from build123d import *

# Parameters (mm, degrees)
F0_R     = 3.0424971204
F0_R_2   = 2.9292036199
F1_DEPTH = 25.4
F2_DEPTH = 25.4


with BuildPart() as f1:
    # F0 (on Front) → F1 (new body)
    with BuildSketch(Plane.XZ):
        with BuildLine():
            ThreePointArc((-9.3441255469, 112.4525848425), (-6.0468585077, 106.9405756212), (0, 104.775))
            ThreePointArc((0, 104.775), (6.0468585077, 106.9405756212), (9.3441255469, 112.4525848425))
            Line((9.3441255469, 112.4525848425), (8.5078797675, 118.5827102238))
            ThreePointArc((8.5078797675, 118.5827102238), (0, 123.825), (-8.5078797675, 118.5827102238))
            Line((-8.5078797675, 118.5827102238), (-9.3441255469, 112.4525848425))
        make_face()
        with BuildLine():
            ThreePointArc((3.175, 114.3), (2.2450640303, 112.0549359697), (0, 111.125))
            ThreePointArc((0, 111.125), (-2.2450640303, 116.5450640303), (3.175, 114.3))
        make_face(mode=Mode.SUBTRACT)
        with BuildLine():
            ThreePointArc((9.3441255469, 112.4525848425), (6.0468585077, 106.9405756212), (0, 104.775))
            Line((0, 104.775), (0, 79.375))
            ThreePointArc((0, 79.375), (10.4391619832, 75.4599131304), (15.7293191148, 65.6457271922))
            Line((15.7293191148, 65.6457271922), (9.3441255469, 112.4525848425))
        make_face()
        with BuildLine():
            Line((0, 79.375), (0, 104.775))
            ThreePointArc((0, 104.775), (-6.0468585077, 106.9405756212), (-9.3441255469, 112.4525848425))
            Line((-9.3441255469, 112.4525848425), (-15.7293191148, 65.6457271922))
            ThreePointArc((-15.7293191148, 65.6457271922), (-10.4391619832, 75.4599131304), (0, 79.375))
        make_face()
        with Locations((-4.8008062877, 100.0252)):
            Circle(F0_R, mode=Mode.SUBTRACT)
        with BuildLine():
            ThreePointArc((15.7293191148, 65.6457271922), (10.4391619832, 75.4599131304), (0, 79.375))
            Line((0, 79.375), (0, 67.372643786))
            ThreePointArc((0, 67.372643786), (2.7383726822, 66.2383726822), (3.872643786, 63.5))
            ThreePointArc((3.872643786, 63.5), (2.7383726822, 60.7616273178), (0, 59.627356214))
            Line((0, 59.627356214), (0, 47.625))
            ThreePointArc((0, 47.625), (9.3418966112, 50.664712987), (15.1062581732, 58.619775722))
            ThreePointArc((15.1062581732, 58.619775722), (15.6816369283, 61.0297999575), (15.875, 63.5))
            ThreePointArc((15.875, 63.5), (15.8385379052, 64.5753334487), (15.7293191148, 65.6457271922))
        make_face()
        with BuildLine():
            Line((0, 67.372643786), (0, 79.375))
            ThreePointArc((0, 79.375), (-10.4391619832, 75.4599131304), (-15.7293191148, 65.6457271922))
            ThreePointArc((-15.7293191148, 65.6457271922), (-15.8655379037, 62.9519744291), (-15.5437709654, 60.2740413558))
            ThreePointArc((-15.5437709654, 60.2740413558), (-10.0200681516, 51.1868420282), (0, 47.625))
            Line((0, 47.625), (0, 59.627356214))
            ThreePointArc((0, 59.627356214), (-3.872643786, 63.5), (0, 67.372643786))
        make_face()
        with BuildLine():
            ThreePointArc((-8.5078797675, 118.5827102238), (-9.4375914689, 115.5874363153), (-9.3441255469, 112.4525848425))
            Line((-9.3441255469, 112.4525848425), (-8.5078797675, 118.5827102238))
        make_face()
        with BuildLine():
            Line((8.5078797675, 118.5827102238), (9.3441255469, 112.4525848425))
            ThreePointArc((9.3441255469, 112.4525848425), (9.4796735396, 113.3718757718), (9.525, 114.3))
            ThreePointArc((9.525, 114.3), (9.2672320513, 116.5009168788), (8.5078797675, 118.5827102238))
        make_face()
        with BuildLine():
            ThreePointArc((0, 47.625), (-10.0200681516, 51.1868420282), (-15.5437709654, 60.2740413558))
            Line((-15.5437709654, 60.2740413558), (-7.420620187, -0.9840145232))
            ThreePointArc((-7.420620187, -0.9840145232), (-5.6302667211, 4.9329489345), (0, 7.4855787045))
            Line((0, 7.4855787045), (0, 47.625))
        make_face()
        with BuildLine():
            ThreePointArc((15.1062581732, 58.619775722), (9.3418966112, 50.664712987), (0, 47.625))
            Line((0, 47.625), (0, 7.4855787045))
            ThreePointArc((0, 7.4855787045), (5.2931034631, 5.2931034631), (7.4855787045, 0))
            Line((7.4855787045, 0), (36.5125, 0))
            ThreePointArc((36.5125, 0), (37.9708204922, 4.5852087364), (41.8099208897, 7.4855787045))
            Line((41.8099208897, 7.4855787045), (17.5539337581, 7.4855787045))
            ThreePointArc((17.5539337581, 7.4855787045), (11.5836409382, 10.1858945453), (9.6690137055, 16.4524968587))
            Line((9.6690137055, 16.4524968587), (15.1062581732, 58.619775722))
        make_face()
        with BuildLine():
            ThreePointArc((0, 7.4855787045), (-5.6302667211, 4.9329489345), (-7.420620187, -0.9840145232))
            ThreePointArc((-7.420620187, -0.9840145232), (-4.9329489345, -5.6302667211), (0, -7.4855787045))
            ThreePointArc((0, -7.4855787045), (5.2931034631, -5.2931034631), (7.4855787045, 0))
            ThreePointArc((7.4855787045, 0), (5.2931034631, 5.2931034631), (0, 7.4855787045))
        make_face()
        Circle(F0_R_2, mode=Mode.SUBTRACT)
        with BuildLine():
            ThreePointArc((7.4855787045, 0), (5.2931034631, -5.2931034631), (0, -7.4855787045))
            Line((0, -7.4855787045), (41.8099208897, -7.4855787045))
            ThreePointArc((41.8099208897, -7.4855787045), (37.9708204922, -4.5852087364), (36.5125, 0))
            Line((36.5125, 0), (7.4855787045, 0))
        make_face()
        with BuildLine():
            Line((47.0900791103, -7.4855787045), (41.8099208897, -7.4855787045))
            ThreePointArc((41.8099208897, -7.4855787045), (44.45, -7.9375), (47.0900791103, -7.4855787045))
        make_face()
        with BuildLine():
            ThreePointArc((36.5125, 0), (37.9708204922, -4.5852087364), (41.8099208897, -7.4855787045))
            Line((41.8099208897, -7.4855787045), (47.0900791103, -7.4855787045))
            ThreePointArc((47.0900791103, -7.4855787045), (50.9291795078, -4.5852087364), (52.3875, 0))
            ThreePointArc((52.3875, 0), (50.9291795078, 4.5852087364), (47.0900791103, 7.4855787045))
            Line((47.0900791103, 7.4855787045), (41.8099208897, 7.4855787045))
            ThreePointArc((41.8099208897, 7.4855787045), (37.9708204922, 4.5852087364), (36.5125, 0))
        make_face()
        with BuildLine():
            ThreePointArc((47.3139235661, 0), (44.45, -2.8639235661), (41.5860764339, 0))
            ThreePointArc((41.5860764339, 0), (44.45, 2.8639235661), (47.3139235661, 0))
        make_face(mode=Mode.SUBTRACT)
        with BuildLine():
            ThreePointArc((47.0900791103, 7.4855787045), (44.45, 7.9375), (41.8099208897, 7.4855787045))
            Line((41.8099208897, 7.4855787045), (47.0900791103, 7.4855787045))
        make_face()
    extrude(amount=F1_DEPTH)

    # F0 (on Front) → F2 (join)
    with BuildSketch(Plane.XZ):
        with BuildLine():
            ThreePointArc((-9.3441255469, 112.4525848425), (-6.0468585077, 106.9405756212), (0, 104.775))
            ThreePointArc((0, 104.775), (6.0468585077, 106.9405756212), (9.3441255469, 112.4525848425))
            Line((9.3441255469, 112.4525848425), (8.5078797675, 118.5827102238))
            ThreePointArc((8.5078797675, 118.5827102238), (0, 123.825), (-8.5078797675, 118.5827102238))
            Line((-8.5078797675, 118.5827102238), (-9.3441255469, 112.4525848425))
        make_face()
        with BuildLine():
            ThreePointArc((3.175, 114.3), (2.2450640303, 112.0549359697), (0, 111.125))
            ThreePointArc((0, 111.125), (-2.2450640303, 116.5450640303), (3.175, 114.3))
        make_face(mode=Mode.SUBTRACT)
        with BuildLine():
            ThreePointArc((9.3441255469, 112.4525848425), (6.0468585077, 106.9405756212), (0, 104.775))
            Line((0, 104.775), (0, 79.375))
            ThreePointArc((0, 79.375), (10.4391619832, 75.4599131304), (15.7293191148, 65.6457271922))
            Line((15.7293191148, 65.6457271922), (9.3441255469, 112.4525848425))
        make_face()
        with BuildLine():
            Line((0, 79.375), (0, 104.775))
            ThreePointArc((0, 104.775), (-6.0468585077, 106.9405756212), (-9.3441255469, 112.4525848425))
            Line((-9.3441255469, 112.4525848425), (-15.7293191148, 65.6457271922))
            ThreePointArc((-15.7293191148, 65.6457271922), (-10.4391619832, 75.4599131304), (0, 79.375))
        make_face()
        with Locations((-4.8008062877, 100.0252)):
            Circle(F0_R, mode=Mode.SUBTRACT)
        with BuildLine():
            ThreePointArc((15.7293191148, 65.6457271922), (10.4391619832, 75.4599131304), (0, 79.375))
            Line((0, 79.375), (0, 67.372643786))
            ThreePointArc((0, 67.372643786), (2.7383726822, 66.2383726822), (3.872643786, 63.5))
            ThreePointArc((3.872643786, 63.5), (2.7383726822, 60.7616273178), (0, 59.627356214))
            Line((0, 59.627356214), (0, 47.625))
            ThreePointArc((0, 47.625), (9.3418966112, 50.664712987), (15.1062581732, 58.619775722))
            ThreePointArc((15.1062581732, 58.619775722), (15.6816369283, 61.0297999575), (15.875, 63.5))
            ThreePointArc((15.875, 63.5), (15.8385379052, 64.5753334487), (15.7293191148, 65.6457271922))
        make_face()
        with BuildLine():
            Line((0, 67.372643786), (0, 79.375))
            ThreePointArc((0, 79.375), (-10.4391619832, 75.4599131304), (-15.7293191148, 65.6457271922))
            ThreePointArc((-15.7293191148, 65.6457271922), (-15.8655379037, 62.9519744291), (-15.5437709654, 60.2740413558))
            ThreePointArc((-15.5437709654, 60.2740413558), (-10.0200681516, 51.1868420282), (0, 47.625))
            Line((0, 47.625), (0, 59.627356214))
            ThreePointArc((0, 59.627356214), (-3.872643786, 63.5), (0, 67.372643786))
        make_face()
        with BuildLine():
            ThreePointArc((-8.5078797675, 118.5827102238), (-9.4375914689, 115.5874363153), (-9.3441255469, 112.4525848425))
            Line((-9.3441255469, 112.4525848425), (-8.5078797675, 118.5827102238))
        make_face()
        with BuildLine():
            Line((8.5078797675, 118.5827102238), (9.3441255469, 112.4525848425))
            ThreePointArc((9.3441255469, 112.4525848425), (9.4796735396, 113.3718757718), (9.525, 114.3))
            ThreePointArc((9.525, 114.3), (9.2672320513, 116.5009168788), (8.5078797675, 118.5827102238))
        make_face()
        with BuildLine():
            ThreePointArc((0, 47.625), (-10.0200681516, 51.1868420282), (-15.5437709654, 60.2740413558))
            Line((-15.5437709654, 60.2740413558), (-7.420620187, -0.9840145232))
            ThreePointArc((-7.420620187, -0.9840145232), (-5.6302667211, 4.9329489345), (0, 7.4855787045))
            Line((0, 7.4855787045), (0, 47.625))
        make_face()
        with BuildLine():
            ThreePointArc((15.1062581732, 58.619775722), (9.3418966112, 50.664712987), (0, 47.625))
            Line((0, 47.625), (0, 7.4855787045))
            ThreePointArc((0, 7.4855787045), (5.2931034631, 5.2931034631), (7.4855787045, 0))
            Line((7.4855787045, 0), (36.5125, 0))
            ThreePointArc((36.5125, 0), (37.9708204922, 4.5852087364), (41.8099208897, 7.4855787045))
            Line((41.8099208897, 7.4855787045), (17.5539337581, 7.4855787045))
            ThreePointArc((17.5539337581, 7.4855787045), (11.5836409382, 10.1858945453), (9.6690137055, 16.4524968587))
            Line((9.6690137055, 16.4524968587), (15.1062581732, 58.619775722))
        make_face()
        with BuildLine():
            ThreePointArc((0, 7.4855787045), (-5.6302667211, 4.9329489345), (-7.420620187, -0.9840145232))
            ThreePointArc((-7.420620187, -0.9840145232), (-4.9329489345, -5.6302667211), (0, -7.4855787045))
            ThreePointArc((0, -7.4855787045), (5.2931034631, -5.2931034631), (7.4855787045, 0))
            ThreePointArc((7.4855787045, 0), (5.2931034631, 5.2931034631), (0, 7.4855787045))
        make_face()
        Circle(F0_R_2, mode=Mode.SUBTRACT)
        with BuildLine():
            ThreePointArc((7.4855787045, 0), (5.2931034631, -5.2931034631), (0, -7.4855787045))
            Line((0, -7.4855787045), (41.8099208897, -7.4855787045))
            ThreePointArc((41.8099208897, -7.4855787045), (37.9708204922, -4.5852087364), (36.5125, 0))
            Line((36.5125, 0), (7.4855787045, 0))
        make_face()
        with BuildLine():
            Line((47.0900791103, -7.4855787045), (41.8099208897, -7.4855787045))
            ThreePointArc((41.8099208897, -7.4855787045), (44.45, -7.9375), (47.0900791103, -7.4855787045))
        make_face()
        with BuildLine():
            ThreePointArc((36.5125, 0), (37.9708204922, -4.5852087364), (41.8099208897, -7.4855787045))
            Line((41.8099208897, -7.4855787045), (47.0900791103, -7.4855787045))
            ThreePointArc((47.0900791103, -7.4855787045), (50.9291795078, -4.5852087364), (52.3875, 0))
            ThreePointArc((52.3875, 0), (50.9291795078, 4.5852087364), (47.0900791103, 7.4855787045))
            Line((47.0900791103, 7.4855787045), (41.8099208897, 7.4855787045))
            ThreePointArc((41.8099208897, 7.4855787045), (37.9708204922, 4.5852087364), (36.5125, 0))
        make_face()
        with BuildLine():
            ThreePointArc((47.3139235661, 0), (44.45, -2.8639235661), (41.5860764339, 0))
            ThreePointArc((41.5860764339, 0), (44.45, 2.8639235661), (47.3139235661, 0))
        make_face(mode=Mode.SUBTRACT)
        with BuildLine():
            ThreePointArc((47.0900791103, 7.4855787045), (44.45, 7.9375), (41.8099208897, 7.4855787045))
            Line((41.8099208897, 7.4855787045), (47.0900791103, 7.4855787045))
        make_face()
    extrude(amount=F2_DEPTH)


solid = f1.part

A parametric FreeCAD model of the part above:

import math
import FreeCAD as App
import Part
import Sketcher

V = App.Vector
Q = App.Units.Quantity

doc = App.newDocument("Part")
body = doc.addObject("PartDesign::Body", "Body")

sketch1 = body.newObject("Sketcher::SketchObject", "Sketch")
sketch1.AttachmentSupport = (doc.getObject("XZ_Plane"), [""])
sketch1.MapMode = "FlatFace"
sketch1.addGeometry([
    Part.ArcOfCircle(Part.Circle(V(0, 63.5, 0), V(0, 0, 1), 15.9), math.radians(-17.9), math.radians(0)),
    Part.ArcOfCircle(Part.Circle(V(0, 63.5, 0), V(0, 0, 1), 15.9), math.radians(0), math.radians(7.77)),
    Part.LineSegment(V(15.7, 65.6, 0), V(9.3, 112.5, 0)),
    Part.ArcOfCircle(Part.Circle(V(0, 114.3, 0), V(0, 0, 1), 9.5), math.radians(-11.18), math.radians(0)),
    Part.ArcOfCircle(Part.Circle(V(0, 114.3, 0), V(0, 0, 1), 9.5), math.radians(0), math.radians(27)),
    Part.ArcOfCircle(Part.Circle(V(0, 114.3, 0), V(0, 0, 1), 9.5), math.radians(27), math.radians(153)),
    Part.ArcOfCircle(Part.Circle(V(0, 114.3, 0), V(0, 0, 1), 9.5), math.radians(153), math.radians(191)),
    Part.LineSegment(V(-9.3, 112.5, 0), V(-15.7, 65.6, 0)),
    Part.ArcOfCircle(Part.Circle(V(0, 63.5, 0), V(0, 0, 1), 15.9), math.radians(172.23), math.radians(191.72)),
    Part.LineSegment(V(-15.5, 60.3, 0), V(-7.4, -1, 0)),
    Part.ArcOfCircle(Part.Circle(V(0, 0, 0), V(0, 0, 1), 7.5), math.radians(-172), math.radians(-90)),
    Part.LineSegment(V(0, -7.5, 0), V(41.8, -7.5, 0)),
    Part.ArcOfCircle(Part.Circle(V(44.5, 0, 0), V(0, 0, 1), 7.9), math.radians(-109), math.radians(-71)),
    Part.ArcOfCircle(Part.Circle(V(44.5, 0, 0), V(0, 0, 1), 7.9), math.radians(-71), math.radians(0)),
    Part.ArcOfCircle(Part.Circle(V(44.5, 0, 0), V(0, 0, 1), 7.9), math.radians(0), math.radians(71)),
    Part.ArcOfCircle(Part.Circle(V(44.5, 0, 0), V(0, 0, 1), 7.9), math.radians(71), math.radians(109)),
    Part.LineSegment(V(41.8, 7.5, 0), V(17.6, 7.5, 0)),
    Part.ArcOfCircle(Part.Circle(V(17.6, 15.4, 0), V(0, 0, 1), 8), math.radians(173), math.radians(270)),
    Part.LineSegment(V(9.7, 16.5, 0), V(15.1, 58.6, 0)),
    Part.Circle(V(0, 0, 0), V(0, 0, 1), 2.9),
    Part.Circle(V(44.5, 0, 0), V(0, 0, 1), 2.9),
    Part.Circle(V(0, 63.5, 0), V(0, 0, 1), 3.9),
    Part.Circle(V(-4.8, 100, 0), V(0, 0, 1), 3),
    Part.ArcOfCircle(Part.Circle(V(0, 114.3, 0), V(0, 0, 1), 3.2), math.radians(0), math.radians(270)),
    Part.ArcOfCircle(Part.Circle(V(0, 114.3, 0), V(0, 0, 1), 3.2), math.radians(-90), math.radians(0)),
], False)
sketch1.addConstraint([
    Sketcher.Constraint("Tangent", 0, 2, 1, 1),
    Sketcher.Constraint("Tangent", 1, 2, 2, 1),
    Sketcher.Constraint("Coincident", 2, 2, 3, 1),
    Sketcher.Constraint("Tangent", 3, 2, 4, 1),
    Sketcher.Constraint("Tangent", 4, 2, 5, 1),
    Sketcher.Constraint("Tangent", 5, 2, 6, 1),
    Sketcher.Constraint("Coincident", 6, 2, 7, 1),
    Sketcher.Constraint("Tangent", 7, 2, 8, 1),
    Sketcher.Constraint("Coincident", 8, 2, 9, 1),
    Sketcher.Constraint("Tangent", 9, 2, 10, 1),
    Sketcher.Constraint("Tangent", 10, 2, 11, 1),
    Sketcher.Constraint("Coincident", 11, 2, 12, 1),
    Sketcher.Constraint("Tangent", 12, 2, 13, 1),
    Sketcher.Constraint("Tangent", 13, 2, 14, 1),
    Sketcher.Constraint("Tangent", 14, 2, 15, 1),
    Sketcher.Constraint("Coincident", 15, 2, 16, 1),
    Sketcher.Constraint("Tangent", 16, 2, 17, 2),
    Sketcher.Constraint("Tangent", 17, 1, 18, 1),
    Sketcher.Constraint("Coincident", 18, 2, 0, 1),
    Sketcher.Constraint("Tangent", 23, 1, 24, 2),
    Sketcher.Constraint("Coincident", 24, 1, 23, 2),
    Sketcher.Constraint("Horizontal", 11),
    Sketcher.Constraint("Horizontal", 16),
    Sketcher.Constraint("Coincident", 10, 3, -1, 1),
    Sketcher.Constraint("Coincident", 19, 3, -1, 1),
    Sketcher.Constraint("Coincident", 5, 3, 3, 3),
    Sketcher.Constraint("Coincident", 8, 3, 0, 3),
    Sketcher.Constraint("Coincident", 14, 3, 12, 3),
    Sketcher.Constraint("Coincident", 20, 3, 12, 3),
    Sketcher.Constraint("Coincident", 21, 3, 0, 3),
    Sketcher.Constraint("Coincident", 23, 3, 3, 3),
    Sketcher.Constraint("Equal", 0, 1),
    Sketcher.Constraint("Equal", 5, 6),
    Sketcher.Constraint("Equal", 1, 8),
    Sketcher.Constraint("Equal", 14, 15),
    Sketcher.Constraint("Symmetric", 4, 2, 5, 2, -2),
    Sketcher.Constraint("Symmetric", 1, 2, 7, 2, -2),
    Sketcher.Constraint("Symmetric", 12, 2, 14, 2, -1),
    Sketcher.Constraint("PointOnObject", 13, 2, -1),
    Sketcher.Constraint("PointOnObject", 24, 1, -2),
    Sketcher.Constraint("Horizontal", 21, 3, 0, 2),
    Sketcher.Constraint("Horizontal", 24, 3, 3, 2),
    Sketcher.Constraint("Horizontal", 11, 2, 12, 2),
    Sketcher.Constraint("Horizontal", 14, 2, 15, 2),
    Sketcher.Constraint("Horizontal", 3, 2, 23, 1),
    Sketcher.Constraint("Radius", 0, Q("0.625 in")),
    Sketcher.Constraint("Radius", 3, Q("0.375 in")),
    Sketcher.Constraint("Radius", 12, Q("0.3125 in")),
    Sketcher.Constraint("Radius", 17, Q("0.313 in")),
    Sketcher.Constraint("Radius", 23, Q("0.125 in")),
    Sketcher.Constraint("DistanceY", 1, 3, 3, 3, Q("2 in")),
    Sketcher.Constraint("DistanceY", -1, 1, 0, 3, Q("2.5 in")),
    Sketcher.Constraint("DistanceX", -1, 1, 12, 3, Q("1.75 in")),
    Sketcher.Constraint("DistanceY", -1, 1, 22, 3, Q("3.938 in")),
    Sketcher.Constraint("Radius", 10, 7.485579),
    Sketcher.Constraint("Diameter", 19, 5.858407),
    Sketcher.Constraint("Diameter", 20, 5.727847),
    Sketcher.Constraint("Diameter", 21, 7.745288),
    Sketcher.Constraint("Diameter", 22, 6.084994),
    Sketcher.Constraint("Distance", 2, 47.240371),
    Sketcher.Constraint("DistanceX", 16, 2, 16, 1, 24.255987),
    Sketcher.Constraint("DistanceX", -1, 1, 4, 2, 8.50788),
    Sketcher.Constraint("DistanceX", 8, 2, -1, 1, 15.543771),
    Sketcher.Constraint("DistanceX", -1, 1, 18, 2, 15.106258),
    Sketcher.Constraint("DistanceX", 22, 3, -1, 1, 4.800806),
])
pad1 = body.newObject("PartDesign::Pad", "Pad")
pad1.Profile = sketch1
pad1.Length = Q("1 in")

sketch2 = body.newObject("Sketcher::SketchObject", "Sketch001")
sketch2.AttachmentSupport = (doc.getObject("XZ_Plane"), [""])
sketch2.MapMode = "FlatFace"
sketch2.addGeometry([
    Part.ArcOfCircle(Part.Circle(V(0, 63.5, 0), V(0, 0, 1), 15.9), math.radians(-17.9), math.radians(0)),
    Part.ArcOfCircle(Part.Circle(V(0, 63.5, 0), V(0, 0, 1), 15.9), math.radians(0), math.radians(7.77)),
    Part.LineSegment(V(15.7, 65.6, 0), V(9.3, 112.5, 0)),
    Part.ArcOfCircle(Part.Circle(V(0, 114.3, 0), V(0, 0, 1), 9.5), math.radians(-11.18), math.radians(0)),
    Part.ArcOfCircle(Part.Circle(V(0, 114.3, 0), V(0, 0, 1), 9.5), math.radians(0), math.radians(27)),
    Part.ArcOfCircle(Part.Circle(V(0, 114.3, 0), V(0, 0, 1), 9.5), math.radians(27), math.radians(153)),
    Part.ArcOfCircle(Part.Circle(V(0, 114.3, 0), V(0, 0, 1), 9.5), math.radians(153), math.radians(191)),
    Part.LineSegment(V(-9.3, 112.5, 0), V(-15.7, 65.6, 0)),
    Part.ArcOfCircle(Part.Circle(V(0, 63.5, 0), V(0, 0, 1), 15.9), math.radians(172.23), math.radians(191.72)),
    Part.LineSegment(V(-15.5, 60.3, 0), V(-7.4, -1, 0)),
    Part.ArcOfCircle(Part.Circle(V(0, 0, 0), V(0, 0, 1), 7.5), math.radians(-172), math.radians(-90)),
    Part.LineSegment(V(0, -7.5, 0), V(41.8, -7.5, 0)),
    Part.ArcOfCircle(Part.Circle(V(44.5, 0, 0), V(0, 0, 1), 7.9), math.radians(-109), math.radians(-71)),
    Part.ArcOfCircle(Part.Circle(V(44.5, 0, 0), V(0, 0, 1), 7.9), math.radians(-71), math.radians(0)),
    Part.ArcOfCircle(Part.Circle(V(44.5, 0, 0), V(0, 0, 1), 7.9), math.radians(0), math.radians(71)),
    Part.ArcOfCircle(Part.Circle(V(44.5, 0, 0), V(0, 0, 1), 7.9), math.radians(71), math.radians(109)),
    Part.LineSegment(V(41.8, 7.5, 0), V(17.6, 7.5, 0)),
    Part.ArcOfCircle(Part.Circle(V(17.6, 15.4, 0), V(0, 0, 1), 8), math.radians(173), math.radians(270)),
    Part.LineSegment(V(9.7, 16.5, 0), V(15.1, 58.6, 0)),
    Part.Circle(V(0, 0, 0), V(0, 0, 1), 2.9),
    Part.Circle(V(44.5, 0, 0), V(0, 0, 1), 2.9),
    Part.Circle(V(0, 63.5, 0), V(0, 0, 1), 3.9),
    Part.Circle(V(-4.8, 100, 0), V(0, 0, 1), 3),
    Part.ArcOfCircle(Part.Circle(V(0, 114.3, 0), V(0, 0, 1), 3.2), math.radians(0), math.radians(270)),
    Part.ArcOfCircle(Part.Circle(V(0, 114.3, 0), V(0, 0, 1), 3.2), math.radians(-90), math.radians(0)),
], False)
sketch2.addConstraint([
    Sketcher.Constraint("Tangent", 0, 2, 1, 1),
    Sketcher.Constraint("Tangent", 1, 2, 2, 1),
    Sketcher.Constraint("Coincident", 2, 2, 3, 1),
    Sketcher.Constraint("Tangent", 3, 2, 4, 1),
    Sketcher.Constraint("Tangent", 4, 2, 5, 1),
    Sketcher.Constraint("Tangent", 5, 2, 6, 1),
    Sketcher.Constraint("Coincident", 6, 2, 7, 1),
    Sketcher.Constraint("Tangent", 7, 2, 8, 1),
    Sketcher.Constraint("Coincident", 8, 2, 9, 1),
    Sketcher.Constraint("Tangent", 9, 2, 10, 1),
    Sketcher.Constraint("Tangent", 10, 2, 11, 1),
    Sketcher.Constraint("Coincident", 11, 2, 12, 1),
    Sketcher.Constraint("Tangent", 12, 2, 13, 1),
    Sketcher.Constraint("Tangent", 13, 2, 14, 1),
    Sketcher.Constraint("Tangent", 14, 2, 15, 1),
    Sketcher.Constraint("Coincident", 15, 2, 16, 1),
    Sketcher.Constraint("Tangent", 16, 2, 17, 2),
    Sketcher.Constraint("Tangent", 17, 1, 18, 1),
    Sketcher.Constraint("Coincident", 18, 2, 0, 1),
    Sketcher.Constraint("Tangent", 23, 1, 24, 2),
    Sketcher.Constraint("Coincident", 24, 1, 23, 2),
    Sketcher.Constraint("Horizontal", 11),
    Sketcher.Constraint("Horizontal", 16),
    Sketcher.Constraint("Coincident", 10, 3, -1, 1),
    Sketcher.Constraint("Coincident", 19, 3, -1, 1),
    Sketcher.Constraint("Coincident", 5, 3, 3, 3),
    Sketcher.Constraint("Coincident", 8, 3, 0, 3),
    Sketcher.Constraint("Coincident", 14, 3, 12, 3),
    Sketcher.Constraint("Coincident", 20, 3, 12, 3),
    Sketcher.Constraint("Coincident", 21, 3, 0, 3),
    Sketcher.Constraint("Coincident", 23, 3, 3, 3),
    Sketcher.Constraint("Equal", 0, 1),
    Sketcher.Constraint("Equal", 5, 6),
    Sketcher.Constraint("Equal", 1, 8),
    Sketcher.Constraint("Equal", 14, 15),
    Sketcher.Constraint("Symmetric", 4, 2, 5, 2, -2),
    Sketcher.Constraint("Symmetric", 1, 2, 7, 2, -2),
    Sketcher.Constraint("Symmetric", 12, 2, 14, 2, -1),
    Sketcher.Constraint("PointOnObject", 13, 2, -1),
    Sketcher.Constraint("PointOnObject", 24, 1, -2),
    Sketcher.Constraint("Horizontal", 21, 3, 0, 2),
    Sketcher.Constraint("Horizontal", 24, 3, 3, 2),
    Sketcher.Constraint("Horizontal", 11, 2, 12, 2),
    Sketcher.Constraint("Horizontal", 14, 2, 15, 2),
    Sketcher.Constraint("Horizontal", 3, 2, 23, 1),
    Sketcher.Constraint("Radius", 0, Q("0.625 in")),
    Sketcher.Constraint("Radius", 3, Q("0.375 in")),
    Sketcher.Constraint("Radius", 12, Q("0.3125 in")),
    Sketcher.Constraint("Radius", 17, Q("0.313 in")),
    Sketcher.Constraint("Radius", 23, Q("0.125 in")),
    Sketcher.Constraint("DistanceY", 1, 3, 3, 3, Q("2 in")),
    Sketcher.Constraint("DistanceY", -1, 1, 0, 3, Q("2.5 in")),
    Sketcher.Constraint("DistanceX", -1, 1, 12, 3, Q("1.75 in")),
    Sketcher.Constraint("DistanceY", -1, 1, 22, 3, Q("3.938 in")),
    Sketcher.Constraint("Radius", 10, 7.485579),
    Sketcher.Constraint("Diameter", 19, 5.858407),
    Sketcher.Constraint("Diameter", 20, 5.727847),
    Sketcher.Constraint("Diameter", 21, 7.745288),
    Sketcher.Constraint("Diameter", 22, 6.084994),
    Sketcher.Constraint("Distance", 2, 47.240371),
    Sketcher.Constraint("DistanceX", 16, 2, 16, 1, 24.255987),
    Sketcher.Constraint("DistanceX", -1, 1, 4, 2, 8.50788),
    Sketcher.Constraint("DistanceX", 8, 2, -1, 1, 15.543771),
    Sketcher.Constraint("DistanceX", -1, 1, 18, 2, 15.106258),
    Sketcher.Constraint("DistanceX", 22, 3, -1, 1, 4.800806),
])
pad2 = body.newObject("PartDesign::Pad", "Pad001")
pad2.Profile = sketch2
pad2.Length = Q("1 in")

doc.recompute()
